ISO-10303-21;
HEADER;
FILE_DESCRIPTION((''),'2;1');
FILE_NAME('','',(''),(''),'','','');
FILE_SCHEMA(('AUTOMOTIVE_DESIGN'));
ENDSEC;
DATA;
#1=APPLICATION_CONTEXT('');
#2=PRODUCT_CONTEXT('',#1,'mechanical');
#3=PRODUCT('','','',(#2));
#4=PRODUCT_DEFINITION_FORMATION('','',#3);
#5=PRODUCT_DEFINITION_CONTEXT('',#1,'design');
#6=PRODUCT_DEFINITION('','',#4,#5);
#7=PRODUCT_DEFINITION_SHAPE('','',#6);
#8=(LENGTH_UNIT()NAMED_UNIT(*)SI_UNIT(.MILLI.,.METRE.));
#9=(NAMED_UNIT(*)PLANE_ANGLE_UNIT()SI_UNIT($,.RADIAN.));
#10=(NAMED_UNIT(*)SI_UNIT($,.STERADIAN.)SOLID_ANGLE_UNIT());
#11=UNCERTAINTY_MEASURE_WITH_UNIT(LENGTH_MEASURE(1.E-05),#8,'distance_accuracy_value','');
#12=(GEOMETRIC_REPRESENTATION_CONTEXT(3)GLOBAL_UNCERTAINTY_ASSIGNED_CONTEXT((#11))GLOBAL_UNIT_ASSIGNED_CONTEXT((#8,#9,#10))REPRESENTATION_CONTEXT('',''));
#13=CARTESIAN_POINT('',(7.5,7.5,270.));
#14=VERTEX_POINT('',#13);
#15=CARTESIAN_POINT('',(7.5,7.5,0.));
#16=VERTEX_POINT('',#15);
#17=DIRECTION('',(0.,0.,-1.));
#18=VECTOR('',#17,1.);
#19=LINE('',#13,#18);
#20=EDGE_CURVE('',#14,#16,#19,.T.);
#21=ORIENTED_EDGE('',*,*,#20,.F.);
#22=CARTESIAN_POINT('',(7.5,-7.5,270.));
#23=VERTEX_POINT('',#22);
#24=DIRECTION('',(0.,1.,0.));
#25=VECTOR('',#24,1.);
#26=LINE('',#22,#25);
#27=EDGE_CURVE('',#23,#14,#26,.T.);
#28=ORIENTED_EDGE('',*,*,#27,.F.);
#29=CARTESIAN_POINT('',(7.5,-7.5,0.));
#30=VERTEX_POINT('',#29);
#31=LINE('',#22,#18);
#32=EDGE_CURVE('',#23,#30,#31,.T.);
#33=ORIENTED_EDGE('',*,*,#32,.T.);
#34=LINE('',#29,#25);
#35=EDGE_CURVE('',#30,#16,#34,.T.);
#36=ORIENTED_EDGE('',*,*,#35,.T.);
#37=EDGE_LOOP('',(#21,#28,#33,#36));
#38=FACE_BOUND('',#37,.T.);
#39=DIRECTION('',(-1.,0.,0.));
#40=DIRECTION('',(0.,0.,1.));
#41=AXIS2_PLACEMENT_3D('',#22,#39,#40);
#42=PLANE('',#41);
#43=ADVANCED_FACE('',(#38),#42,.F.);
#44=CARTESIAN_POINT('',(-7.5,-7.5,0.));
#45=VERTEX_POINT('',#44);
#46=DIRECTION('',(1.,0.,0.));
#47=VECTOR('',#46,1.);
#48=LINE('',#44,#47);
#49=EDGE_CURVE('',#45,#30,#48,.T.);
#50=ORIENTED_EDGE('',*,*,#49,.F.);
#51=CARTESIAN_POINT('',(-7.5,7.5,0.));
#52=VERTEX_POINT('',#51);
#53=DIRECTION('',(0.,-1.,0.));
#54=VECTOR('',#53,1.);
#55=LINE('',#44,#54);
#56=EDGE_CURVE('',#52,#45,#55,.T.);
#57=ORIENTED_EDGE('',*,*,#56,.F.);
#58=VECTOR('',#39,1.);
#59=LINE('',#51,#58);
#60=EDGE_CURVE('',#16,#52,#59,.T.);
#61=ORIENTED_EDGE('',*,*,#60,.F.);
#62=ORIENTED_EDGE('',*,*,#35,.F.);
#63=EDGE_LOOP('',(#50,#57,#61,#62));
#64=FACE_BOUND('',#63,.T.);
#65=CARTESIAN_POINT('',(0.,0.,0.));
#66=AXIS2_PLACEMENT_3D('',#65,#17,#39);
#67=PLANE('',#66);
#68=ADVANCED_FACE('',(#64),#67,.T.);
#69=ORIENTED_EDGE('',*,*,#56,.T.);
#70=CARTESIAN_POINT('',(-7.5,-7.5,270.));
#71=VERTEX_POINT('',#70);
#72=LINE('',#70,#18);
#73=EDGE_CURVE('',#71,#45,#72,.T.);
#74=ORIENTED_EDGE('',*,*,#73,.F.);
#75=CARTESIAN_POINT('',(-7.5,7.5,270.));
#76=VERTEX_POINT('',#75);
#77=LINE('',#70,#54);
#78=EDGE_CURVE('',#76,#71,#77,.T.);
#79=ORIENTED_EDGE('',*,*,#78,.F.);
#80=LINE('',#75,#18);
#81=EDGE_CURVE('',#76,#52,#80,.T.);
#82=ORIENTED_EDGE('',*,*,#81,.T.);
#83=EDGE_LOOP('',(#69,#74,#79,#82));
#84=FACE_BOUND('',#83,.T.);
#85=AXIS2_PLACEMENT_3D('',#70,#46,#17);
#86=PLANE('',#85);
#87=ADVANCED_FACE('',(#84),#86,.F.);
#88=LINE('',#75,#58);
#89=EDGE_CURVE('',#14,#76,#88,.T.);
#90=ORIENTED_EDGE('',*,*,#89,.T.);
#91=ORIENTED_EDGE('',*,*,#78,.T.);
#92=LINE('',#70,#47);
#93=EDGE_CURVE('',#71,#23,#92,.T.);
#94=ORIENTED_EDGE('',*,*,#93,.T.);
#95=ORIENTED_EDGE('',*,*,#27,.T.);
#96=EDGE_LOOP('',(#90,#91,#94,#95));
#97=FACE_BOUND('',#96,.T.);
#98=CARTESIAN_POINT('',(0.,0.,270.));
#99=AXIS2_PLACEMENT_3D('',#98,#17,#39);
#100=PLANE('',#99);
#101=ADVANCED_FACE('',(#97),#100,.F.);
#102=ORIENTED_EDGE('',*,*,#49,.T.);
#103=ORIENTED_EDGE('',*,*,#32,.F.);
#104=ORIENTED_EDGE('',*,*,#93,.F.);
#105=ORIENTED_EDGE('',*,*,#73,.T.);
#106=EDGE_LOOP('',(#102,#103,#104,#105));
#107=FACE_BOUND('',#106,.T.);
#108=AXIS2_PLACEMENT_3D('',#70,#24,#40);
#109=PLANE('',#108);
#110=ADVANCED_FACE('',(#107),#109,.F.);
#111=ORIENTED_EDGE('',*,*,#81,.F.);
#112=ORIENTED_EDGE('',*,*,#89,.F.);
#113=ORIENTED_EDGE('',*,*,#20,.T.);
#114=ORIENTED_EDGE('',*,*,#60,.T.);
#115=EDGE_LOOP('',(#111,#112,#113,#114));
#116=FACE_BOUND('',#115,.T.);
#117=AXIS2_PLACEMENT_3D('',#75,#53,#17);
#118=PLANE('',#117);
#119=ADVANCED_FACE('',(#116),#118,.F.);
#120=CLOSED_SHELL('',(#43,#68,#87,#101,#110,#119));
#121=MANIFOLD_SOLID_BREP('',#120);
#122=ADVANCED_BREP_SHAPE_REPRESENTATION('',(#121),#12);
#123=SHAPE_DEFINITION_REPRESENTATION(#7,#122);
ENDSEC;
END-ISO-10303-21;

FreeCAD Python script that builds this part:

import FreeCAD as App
import Part
import Sketcher

V = App.Vector

doc = App.newDocument("Part")
params = doc.addObject("Spreadsheet::Sheet", "Params")
for row, (alias, value) in enumerate([
    ("sketch1_width", "15 mm"),
    ("pad1_length", "270 mm"),
], start=1):
    params.set(f"A{row}", alias)
    params.set(f"B{row}", "=" + value)
    params.setAlias(f"B{row}", alias)

body = doc.addObject("PartDesign::Body", "Body")

sketch1 = body.newObject("Sketcher::SketchObject", "Sketch")
sketch1.AttachmentSupport = (doc.getObject("XY_Plane"), [""])
sketch1.MapMode = "FlatFace"
sketch1.addGeometry(Part.LineSegment(V(-8, 8, 0), V(-8, -8, 0)), False)
sketch1.addGeometry(Part.LineSegment(V(-8, -8, 0), V(8, -8, 0)), False)
sketch1.addGeometry(Part.LineSegment(V(8, -8, 0), V(8, 8, 0)), False)
sketch1.addGeometry(Part.LineSegment(V(8, 8, 0), V(-8, 8, 0)), False)
sketch1.addConstraint(Sketcher.Constraint("Coincident", 0, 2, 1, 1))
sketch1.addConstraint(Sketcher.Constraint("Coincident", 1, 2, 2, 1))
sketch1.addConstraint(Sketcher.Constraint("Coincident", 2, 2, 3, 1))
sketch1.addConstraint(Sketcher.Constraint("Coincident", 3, 2, 0, 1))
sketch1.addConstraint(Sketcher.Constraint("Vertical", 0))
sketch1.addConstraint(Sketcher.Constraint("Horizontal", 1))
sketch1.addConstraint(Sketcher.Constraint("Vertical", 2))
sketch1.addConstraint(Sketcher.Constraint("Horizontal", 3))
sketch1.addConstraint(Sketcher.Constraint("Symmetric", 0, 2, 2, 2, -1, 1))
sketch1.addConstraint(Sketcher.Constraint("Equal", 3, 0))
sketch1.addConstraint(Sketcher.Constraint("DistanceX", 1, 1, 1, 2, 15.0))
sketch1.setExpression("Constraints[10]", "Params.sketch1_width")
pad1 = body.newObject("PartDesign::Pad", "Pad")
pad1.Profile = sketch1
pad1.setExpression("Length", "Params.pad1_length")

doc.recompute()
